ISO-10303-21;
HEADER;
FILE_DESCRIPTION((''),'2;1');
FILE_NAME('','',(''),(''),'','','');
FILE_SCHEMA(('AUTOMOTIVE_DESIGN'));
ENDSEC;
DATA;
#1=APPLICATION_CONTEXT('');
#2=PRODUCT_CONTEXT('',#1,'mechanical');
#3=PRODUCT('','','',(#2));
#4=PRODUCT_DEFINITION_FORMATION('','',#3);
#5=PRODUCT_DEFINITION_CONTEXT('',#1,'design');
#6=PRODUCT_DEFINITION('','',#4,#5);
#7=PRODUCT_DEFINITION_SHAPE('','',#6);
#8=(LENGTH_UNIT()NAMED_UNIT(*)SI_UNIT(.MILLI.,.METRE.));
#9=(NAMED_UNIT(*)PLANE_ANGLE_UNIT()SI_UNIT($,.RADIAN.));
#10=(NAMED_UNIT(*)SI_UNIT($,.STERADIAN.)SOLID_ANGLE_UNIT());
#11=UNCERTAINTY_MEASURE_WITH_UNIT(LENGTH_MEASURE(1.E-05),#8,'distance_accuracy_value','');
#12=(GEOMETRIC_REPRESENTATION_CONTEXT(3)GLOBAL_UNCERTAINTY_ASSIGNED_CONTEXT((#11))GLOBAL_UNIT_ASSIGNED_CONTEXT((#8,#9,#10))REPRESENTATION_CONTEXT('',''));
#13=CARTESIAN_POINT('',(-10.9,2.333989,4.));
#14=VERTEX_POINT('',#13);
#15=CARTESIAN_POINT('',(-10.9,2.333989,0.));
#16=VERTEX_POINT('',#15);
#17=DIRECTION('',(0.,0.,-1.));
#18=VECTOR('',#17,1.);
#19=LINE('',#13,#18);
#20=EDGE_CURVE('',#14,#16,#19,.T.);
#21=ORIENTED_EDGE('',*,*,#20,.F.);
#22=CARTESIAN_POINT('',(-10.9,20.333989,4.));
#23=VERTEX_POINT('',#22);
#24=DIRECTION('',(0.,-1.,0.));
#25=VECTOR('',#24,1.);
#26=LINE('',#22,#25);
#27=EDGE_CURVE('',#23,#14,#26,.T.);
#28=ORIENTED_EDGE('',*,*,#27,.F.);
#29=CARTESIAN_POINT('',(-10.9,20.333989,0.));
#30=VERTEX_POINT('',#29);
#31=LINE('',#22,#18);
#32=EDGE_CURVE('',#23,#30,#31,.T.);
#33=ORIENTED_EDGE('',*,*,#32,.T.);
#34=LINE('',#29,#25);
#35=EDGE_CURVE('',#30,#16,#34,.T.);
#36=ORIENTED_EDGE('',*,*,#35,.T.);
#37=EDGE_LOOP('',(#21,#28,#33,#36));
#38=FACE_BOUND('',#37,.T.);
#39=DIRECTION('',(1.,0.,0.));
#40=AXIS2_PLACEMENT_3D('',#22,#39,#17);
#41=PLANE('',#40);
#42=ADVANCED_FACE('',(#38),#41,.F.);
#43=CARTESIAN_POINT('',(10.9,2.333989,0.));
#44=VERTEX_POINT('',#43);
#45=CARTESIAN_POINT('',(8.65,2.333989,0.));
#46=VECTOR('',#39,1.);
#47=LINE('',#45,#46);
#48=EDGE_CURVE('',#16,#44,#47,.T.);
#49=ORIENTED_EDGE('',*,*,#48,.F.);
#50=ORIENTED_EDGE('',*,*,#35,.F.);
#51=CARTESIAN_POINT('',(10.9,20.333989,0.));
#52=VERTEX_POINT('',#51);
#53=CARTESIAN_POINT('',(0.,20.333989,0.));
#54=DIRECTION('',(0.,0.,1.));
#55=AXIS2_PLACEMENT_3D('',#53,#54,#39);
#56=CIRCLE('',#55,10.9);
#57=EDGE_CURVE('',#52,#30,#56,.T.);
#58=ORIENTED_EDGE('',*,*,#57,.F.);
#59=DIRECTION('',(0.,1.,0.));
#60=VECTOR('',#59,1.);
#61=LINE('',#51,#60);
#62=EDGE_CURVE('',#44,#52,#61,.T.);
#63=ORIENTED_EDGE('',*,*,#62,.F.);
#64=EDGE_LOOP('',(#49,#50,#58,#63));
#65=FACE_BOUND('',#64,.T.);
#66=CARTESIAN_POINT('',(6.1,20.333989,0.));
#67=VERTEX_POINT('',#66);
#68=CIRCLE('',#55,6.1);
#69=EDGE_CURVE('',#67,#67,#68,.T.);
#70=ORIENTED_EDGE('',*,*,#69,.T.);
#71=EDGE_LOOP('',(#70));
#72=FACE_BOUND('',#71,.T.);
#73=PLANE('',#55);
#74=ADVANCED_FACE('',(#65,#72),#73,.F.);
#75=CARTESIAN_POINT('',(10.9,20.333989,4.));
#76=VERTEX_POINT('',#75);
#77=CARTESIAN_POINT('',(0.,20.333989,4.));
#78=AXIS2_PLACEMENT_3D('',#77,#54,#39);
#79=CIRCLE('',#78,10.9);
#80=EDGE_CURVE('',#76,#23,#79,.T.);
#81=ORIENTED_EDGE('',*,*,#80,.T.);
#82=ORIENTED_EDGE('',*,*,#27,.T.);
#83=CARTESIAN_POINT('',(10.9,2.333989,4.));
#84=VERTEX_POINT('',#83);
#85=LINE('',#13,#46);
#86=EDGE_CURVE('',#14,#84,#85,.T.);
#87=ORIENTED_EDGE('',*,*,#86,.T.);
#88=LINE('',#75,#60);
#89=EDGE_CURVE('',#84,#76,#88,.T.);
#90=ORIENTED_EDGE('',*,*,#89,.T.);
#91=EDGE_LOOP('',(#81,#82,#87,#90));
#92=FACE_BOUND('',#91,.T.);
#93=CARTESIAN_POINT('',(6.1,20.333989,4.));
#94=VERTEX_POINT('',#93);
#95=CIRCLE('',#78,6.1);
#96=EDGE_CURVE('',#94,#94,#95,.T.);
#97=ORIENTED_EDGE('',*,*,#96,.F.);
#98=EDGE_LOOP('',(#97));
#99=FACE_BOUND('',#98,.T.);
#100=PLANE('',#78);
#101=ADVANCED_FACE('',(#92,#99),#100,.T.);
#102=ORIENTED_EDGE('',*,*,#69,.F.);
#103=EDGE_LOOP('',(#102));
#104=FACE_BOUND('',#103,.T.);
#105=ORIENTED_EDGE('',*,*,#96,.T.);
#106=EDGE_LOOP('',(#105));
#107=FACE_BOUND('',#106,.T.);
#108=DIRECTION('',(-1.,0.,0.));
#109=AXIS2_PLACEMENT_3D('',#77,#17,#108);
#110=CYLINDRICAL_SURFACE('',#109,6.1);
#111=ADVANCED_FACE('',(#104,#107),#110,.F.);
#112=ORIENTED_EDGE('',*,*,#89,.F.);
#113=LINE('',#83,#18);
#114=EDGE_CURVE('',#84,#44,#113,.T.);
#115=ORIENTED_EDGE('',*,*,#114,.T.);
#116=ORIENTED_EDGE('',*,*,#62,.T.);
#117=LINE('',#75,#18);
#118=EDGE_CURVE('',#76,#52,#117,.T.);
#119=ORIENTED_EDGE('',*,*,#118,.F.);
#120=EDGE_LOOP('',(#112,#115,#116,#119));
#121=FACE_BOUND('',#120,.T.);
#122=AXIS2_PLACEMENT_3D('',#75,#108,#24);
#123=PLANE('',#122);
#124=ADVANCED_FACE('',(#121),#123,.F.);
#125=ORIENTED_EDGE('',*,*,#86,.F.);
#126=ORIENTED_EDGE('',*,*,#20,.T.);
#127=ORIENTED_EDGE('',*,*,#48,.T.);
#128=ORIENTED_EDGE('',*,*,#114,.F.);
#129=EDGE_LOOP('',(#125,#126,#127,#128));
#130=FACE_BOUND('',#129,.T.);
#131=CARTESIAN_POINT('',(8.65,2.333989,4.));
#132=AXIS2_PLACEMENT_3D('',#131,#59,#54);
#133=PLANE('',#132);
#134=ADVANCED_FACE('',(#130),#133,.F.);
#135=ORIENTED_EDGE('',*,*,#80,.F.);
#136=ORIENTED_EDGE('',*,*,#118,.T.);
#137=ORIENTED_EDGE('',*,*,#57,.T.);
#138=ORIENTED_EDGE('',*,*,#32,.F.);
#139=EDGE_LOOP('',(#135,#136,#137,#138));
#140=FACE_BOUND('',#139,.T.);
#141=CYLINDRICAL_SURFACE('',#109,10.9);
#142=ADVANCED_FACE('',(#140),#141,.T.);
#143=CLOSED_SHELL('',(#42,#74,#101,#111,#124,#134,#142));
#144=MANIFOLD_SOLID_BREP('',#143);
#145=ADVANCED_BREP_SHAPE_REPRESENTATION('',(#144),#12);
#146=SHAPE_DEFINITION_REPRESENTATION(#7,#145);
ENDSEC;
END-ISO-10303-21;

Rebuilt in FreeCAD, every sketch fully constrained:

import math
import FreeCAD as App
import Part
import Sketcher

V = App.Vector
Q = App.Units.Quantity

doc = App.newDocument("Part")
body = doc.addObject("PartDesign::Body", "Body")

# Sketch on XY plane
sketch1 = body.newObject("Sketcher::SketchObject", "Sketch")
sketch1.AttachmentSupport = (doc.getObject("XY_Plane"), [""])
sketch1.MapMode = "FlatFace"
sketch1.addGeometry([
    Part.LineSegment(V(-10.9, 20.333989, 0), V(-10.9, 2.333989, 0)),  # 0
    Part.LineSegment(V(-10.9, 2.333989, 0), V(10.9, 2.333989, 0)),  # 1
    Part.LineSegment(V(10.9, 2.333989, 0), V(10.9, 20.333989, 0)),  # 2
    Part.ArcOfCircle(Part.Circle(V(0, 20.333989, 0), V(0, 0, 1), 10.9), math.radians(0), math.radians(180)),  # 3
    Part.Circle(V(0, 20.333989, 0), V(0, 0, 1), 6.1),  # 4
], False)
sketch1.addConstraint([
    Sketcher.Constraint("Coincident", 0, 2, 1, 1),
    Sketcher.Constraint("Coincident", 1, 2, 2, 1),
    Sketcher.Constraint("Tangent", 2, 2, 3, 1),
    Sketcher.Constraint("Tangent", 3, 2, 0, 1),
    Sketcher.Constraint("Vertical", 0),
    Sketcher.Constraint("Horizontal", 1),
    Sketcher.Constraint("Vertical", 2),
    Sketcher.Constraint("Coincident", 4, 3, 3, 3),
    Sketcher.Constraint("PointOnObject", 3, 3, -2),
    Sketcher.Constraint("Diameter", 4, Q("12.2 mm")),
    Sketcher.Constraint("Radius", 3, Q("10.9 mm")),
    Sketcher.Constraint("DistanceY", 0, 2, 0, 1, Q("18 mm")),
    Sketcher.Constraint("DistanceY", -1, 1, 3, 3, Q("20.333989 mm")),
])
pad1 = body.newObject("PartDesign::Pad", "Pad")
pad1.Profile = sketch1
pad1.Length = 4

doc.recompute()
